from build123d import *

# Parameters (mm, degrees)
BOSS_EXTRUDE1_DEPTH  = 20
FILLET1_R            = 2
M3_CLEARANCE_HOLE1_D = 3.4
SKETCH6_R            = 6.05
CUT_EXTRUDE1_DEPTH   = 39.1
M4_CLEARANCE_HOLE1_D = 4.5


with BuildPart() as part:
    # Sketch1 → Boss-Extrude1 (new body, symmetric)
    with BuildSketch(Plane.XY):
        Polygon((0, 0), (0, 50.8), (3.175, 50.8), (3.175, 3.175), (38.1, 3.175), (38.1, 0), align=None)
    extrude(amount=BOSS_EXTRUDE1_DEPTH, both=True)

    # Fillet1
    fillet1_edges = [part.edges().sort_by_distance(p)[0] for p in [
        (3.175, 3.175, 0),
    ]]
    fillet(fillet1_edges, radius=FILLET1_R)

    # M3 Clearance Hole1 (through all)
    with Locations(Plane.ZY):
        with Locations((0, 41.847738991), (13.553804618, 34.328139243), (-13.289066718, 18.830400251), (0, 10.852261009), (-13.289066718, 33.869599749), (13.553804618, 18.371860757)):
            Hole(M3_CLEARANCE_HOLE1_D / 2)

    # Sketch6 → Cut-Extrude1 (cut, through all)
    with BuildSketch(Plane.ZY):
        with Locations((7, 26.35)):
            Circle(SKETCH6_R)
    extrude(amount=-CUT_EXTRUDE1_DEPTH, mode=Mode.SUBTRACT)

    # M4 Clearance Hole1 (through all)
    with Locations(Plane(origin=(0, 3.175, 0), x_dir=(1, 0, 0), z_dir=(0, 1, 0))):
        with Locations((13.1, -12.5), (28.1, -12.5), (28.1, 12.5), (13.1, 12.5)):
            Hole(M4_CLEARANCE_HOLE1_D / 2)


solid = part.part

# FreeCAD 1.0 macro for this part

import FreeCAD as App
import Part
import Sketcher
from FreeCAD import Vector
Q = App.Units.Quantity


def edges_at(feature, points):
    """Names of the edges that pass closest to the given points."""
    edges = feature.Shape.Edges
    near = lambda p: min(range(len(edges)), key=lambda i: edges[i].distToShape(Part.Vertex(*p))[0])
    return sorted({f"Edge{near(p) + 1}" for p in points})

doc = App.newDocument("Part")
body = doc.addObject("PartDesign::Body", "Body")

sketch1 = body.newObject("Sketcher::SketchObject", "Sketch")
sketch1.AttachmentSupport = (doc.getObject("XY_Plane"), [""])
sketch1.MapMode = "FlatFace"
sketch1.addGeometry(Part.LineSegment(Vector(0, 50.8, 0), Vector(0, 0, 0)), False)
sketch1.addGeometry(Part.LineSegment(Vector(0, 0, 0), Vector(38.1, 0, 0)), False)
sketch1.addGeometry(Part.LineSegment(Vector(38.1, 0, 0), Vector(38.1, 3.175, 0)), False)
sketch1.addGeometry(Part.LineSegment(Vector(38.1, 3.175, 0), Vector(3.175, 3.175, 0)), False)
sketch1.addGeometry(Part.LineSegment(Vector(3.175, 3.175, 0), Vector(3.175, 50.8, 0)), False)
sketch1.addGeometry(Part.LineSegment(Vector(3.175, 50.8, 0), Vector(0, 50.8, 0)), False)
sketch1.addConstraint(Sketcher.Constraint("Coincident", 0, 2, 1, 1))
sketch1.addConstraint(Sketcher.Constraint("Coincident", 1, 2, 2, 1))
sketch1.addConstraint(Sketcher.Constraint("Coincident", 2, 2, 3, 1))
sketch1.addConstraint(Sketcher.Constraint("Coincident", 3, 2, 4, 1))
sketch1.addConstraint(Sketcher.Constraint("Coincident", 4, 2, 5, 1))
sketch1.addConstraint(Sketcher.Constraint("Coincident", 5, 2, 0, 1))
sketch1.addConstraint(Sketcher.Constraint("Vertical", 0))
sketch1.addConstraint(Sketcher.Constraint("Horizontal", 1))
sketch1.addConstraint(Sketcher.Constraint("Vertical", 2))
sketch1.addConstraint(Sketcher.Constraint("Horizontal", 3))
sketch1.addConstraint(Sketcher.Constraint("Vertical", 4))
sketch1.addConstraint(Sketcher.Constraint("Horizontal", 5))
sketch1.addConstraint(Sketcher.Constraint("Coincident", 0, 2, -1, 1))
sketch1.addConstraint(Sketcher.Constraint("Equal", 5, 2))
sketch1.addConstraint(Sketcher.Constraint("DistanceX", 1, 1, 1, 2, Q("38.1 mm")))
sketch1.addConstraint(Sketcher.Constraint("DistanceY", 0, 2, 0, 1, Q("50.8 mm")))
sketch1.addConstraint(Sketcher.Constraint("DistanceX", 3, 2, 3, 1, Q("34.925 mm")))
pad1 = body.newObject("PartDesign::Pad", "Pad")
pad1.Profile = sketch1
pad1.Length = 40
pad1.Midplane = True
doc.recompute()

fillet = body.newObject("PartDesign::Fillet", "Fillet")
fillet.Base = (pad1, edges_at(pad1, [(3.175, 3.175, 0)]))
fillet.Radius = 2

sketch2 = body.newObject("Sketcher::SketchObject", "Sketch001")
sketch2.AttachmentSupport = (doc.getObject("YZ_Plane"), [""])
sketch2.MapMode = "FlatFace"
sketch2.addGeometry(Part.Circle(Vector(41.847739, 0, 0), Vector(0, 0, 1), 1.7), False)
sketch2.addGeometry(Part.Circle(Vector(34.328139, 13.553805, 0), Vector(0, 0, 1), 1.7), False)
sketch2.addGeometry(Part.Circle(Vector(18.8304, -13.289067, 0), Vector(0, 0, 1), 1.7), False)
sketch2.addGeometry(Part.Circle(Vector(10.852261, 0, 0), Vector(0, 0, 1), 1.7), False)
sketch2.addGeometry(Part.Circle(Vector(33.8696, -13.289067, 0), Vector(0, 0, 1), 1.7), False)
sketch2.addGeometry(Part.Circle(Vector(18.371861, 13.553805, 0), Vector(0, 0, 1), 1.7), False)
sketch2.addConstraint(Sketcher.Constraint("Equal", 0, 1))
sketch2.addConstraint(Sketcher.Constraint("Equal", 1, 2))
sketch2.addConstraint(Sketcher.Constraint("Equal", 2, 3))
sketch2.addConstraint(Sketcher.Constraint("Equal", 3, 4))
sketch2.addConstraint(Sketcher.Constraint("Equal", 4, 5))
sketch2.addConstraint(Sketcher.Constraint("PointOnObject", 0, 3, -1))
sketch2.addConstraint(Sketcher.Constraint("PointOnObject", 3, 3, -1))
sketch2.addConstraint(Sketcher.Constraint("Horizontal", 2, 3, 4, 3))
sketch2.addConstraint(Sketcher.Constraint("Horizontal", 1, 3, 5, 3))
sketch2.addConstraint(Sketcher.Constraint("Diameter", 0, Q("3.4 mm")))
sketch2.addConstraint(Sketcher.Constraint("DistanceX", -1, 1, 2, 3, Q("18.8304 mm")))
sketch2.addConstraint(Sketcher.Constraint("DistanceX", -1, 1, 4, 3, Q("33.8696 mm")))
sketch2.addConstraint(Sketcher.Constraint("DistanceX", 1, 3, 0, 3, Q("7.5196 mm")))
sketch2.addConstraint(Sketcher.Constraint("DistanceX", 3, 3, 5, 3, Q("7.5196 mm")))
sketch2.addConstraint(Sketcher.Constraint("DistanceX", -1, 1, 0, 3, Q("41.847739 mm")))
sketch2.addConstraint(Sketcher.Constraint("DistanceX", -1, 1, 3, 3, Q("10.852261 mm")))
sketch2.addConstraint(Sketcher.Constraint("DistanceY", 2, 3, 1, 3, Q("26.842871 mm")))
sketch2.addConstraint(Sketcher.Constraint("DistanceY", -1, 1, 1, 3, Q("13.553805 mm")))
doc.recompute()
hole = body.newObject("PartDesign::Hole", "Hole")
hole.Profile = sketch2
hole.ThreadType = "None"
hole.Diameter = 3.4
hole.DepthType = "ThroughAll"
hole.Reversed = True

sketch3 = body.newObject("Sketcher::SketchObject", "Sketch002")
sketch3.AttachmentSupport = (doc.getObject("YZ_Plane"), [""])
sketch3.MapMode = "FlatFace"
sketch3.addGeometry(Part.Circle(Vector(26.35, 7, 0), Vector(0, 0, 1), 6.05), False)
sketch3.addConstraint(Sketcher.Constraint("Diameter", 0, Q("12.1 mm")))
sketch3.addConstraint(Sketcher.Constraint("DistanceY", -1, 1, 0, 3, Q("7 mm")))
sketch3.addConstraint(Sketcher.Constraint("DistanceX", -1, 1, 0, 3, Q("26.35 mm")))
pocket1 = body.newObject("PartDesign::Pocket", "Pocket")
pocket1.Profile = sketch3
pocket1.Type = "ThroughAll"
pocket1.Reversed = True

sketch4 = body.newObject("Sketcher::SketchObject", "Sketch003")
sketch4.AttachmentSupport = (doc.getObject("XZ_Plane"), [""])
sketch4.MapMode = "FlatFace"
sketch4.AttachmentOffset = App.Placement(Vector(0, 0, -3.175), App.Rotation())
sketch4.addGeometry(Part.Circle(Vector(13.1, 12.5, 0), Vector(0, 0, 1), 2.25), False)
sketch4.addGeometry(Part.Circle(Vector(28.1, 12.5, 0), Vector(0, 0, 1), 2.25), False)
sketch4.addGeometry(Part.Circle(Vector(28.1, -12.5, 0), Vector(0, 0, 1), 2.25), False)
sketch4.addGeometry(Part.Circle(Vector(13.1, -12.5, 0), Vector(0, 0, 1), 2.25), False)
sketch4.addConstraint(Sketcher.Constraint("Equal", 0, 1))
sketch4.addConstraint(Sketcher.Constraint("Equal", 1, 2))
sketch4.addConstraint(Sketcher.Constraint("Equal", 2, 3))
sketch4.addConstraint(Sketcher.Constraint("Symmetric", 1, 3, 2, 3, -1))
sketch4.addConstraint(Sketcher.Constraint("Symmetric", 0, 3, 3, 3, -1))
sketch4.addConstraint(Sketcher.Constraint("Horizontal", 0, 3, 1, 3))
sketch4.addConstraint(Sketcher.Constraint("Diameter", 0, Q("4.5 mm")))
sketch4.addConstraint(Sketcher.Constraint("DistanceX", 0, 3, 1, 3, Q("15 mm")))
sketch4.addConstraint(Sketcher.Constraint("DistanceY", 2, 3, 1, 3, Q("25 mm")))
sketch4.addConstraint(Sketcher.Constraint("DistanceX", -1, 1, 0, 3, Q("13.1 mm")))
doc.recompute()
hole2 = body.newObject("PartDesign::Hole", "Hole001")
hole2.Profile = sketch4
hole2.ThreadType = "None"
hole2.Diameter = 4.5
hole2.DepthType = "ThroughAll"
hole2.Reversed = True

doc.recompute()
